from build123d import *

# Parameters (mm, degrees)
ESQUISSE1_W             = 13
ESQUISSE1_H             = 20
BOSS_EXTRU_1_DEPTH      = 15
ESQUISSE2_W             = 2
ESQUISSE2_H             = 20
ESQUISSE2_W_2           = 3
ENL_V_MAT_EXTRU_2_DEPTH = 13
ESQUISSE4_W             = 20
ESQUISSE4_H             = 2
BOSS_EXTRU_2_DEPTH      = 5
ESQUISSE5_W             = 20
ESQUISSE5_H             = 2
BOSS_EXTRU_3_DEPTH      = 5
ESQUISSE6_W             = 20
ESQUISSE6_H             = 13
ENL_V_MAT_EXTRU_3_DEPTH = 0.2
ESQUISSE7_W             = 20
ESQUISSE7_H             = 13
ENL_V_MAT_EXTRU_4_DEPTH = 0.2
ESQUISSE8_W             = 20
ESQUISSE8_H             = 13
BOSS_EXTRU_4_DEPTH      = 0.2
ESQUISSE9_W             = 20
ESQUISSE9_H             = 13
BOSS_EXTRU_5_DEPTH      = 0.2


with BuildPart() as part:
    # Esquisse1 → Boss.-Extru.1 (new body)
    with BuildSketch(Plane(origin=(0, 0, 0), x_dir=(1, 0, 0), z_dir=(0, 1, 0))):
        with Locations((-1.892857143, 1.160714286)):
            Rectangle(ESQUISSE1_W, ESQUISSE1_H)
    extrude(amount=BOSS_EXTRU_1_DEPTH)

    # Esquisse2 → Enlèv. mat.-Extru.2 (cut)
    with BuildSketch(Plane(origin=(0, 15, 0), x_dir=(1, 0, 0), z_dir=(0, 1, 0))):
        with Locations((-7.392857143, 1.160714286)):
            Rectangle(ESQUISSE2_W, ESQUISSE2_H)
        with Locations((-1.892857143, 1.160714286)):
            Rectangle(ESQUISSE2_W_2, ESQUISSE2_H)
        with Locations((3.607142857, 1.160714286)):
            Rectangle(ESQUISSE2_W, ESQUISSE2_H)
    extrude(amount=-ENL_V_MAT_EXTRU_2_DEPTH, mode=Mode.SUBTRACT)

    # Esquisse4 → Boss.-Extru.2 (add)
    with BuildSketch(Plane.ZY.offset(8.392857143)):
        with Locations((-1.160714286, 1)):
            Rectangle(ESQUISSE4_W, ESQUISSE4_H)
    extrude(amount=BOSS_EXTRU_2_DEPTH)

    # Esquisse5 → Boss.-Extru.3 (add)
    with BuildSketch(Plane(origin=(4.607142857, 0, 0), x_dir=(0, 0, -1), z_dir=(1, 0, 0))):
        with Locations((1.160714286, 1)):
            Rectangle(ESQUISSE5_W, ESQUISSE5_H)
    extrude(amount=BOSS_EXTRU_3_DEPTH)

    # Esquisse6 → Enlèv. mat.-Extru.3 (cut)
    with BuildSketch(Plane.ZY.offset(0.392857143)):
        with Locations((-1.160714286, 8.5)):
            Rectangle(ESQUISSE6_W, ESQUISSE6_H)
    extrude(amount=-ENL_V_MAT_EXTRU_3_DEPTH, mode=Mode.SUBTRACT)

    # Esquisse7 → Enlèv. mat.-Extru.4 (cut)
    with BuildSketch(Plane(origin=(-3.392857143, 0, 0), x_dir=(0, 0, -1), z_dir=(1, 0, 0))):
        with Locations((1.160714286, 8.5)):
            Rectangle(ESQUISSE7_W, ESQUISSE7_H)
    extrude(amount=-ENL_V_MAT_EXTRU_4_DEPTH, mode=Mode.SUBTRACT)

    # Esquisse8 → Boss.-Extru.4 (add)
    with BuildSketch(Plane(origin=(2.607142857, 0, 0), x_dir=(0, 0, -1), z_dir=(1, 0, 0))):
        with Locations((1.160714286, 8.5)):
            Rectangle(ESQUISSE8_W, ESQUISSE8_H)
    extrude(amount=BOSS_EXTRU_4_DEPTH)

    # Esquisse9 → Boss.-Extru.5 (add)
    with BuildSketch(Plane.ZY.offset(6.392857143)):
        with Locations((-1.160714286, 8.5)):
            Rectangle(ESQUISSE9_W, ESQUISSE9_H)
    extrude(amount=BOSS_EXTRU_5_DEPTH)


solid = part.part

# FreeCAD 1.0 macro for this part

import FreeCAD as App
import Part
import Sketcher


def add_polygon(sketch, points):
    """Adds a closed chain of lines whose ends are joined by coincident constraints."""
    first, n = sketch.GeometryCount, len(points)
    for a, b in zip(points, points[1:] + points[:1]):
        sketch.addGeometry(Part.LineSegment(App.Vector(*a, 0), App.Vector(*b, 0)), False)
    for i in range(n):
        sketch.addConstraint(Sketcher.Constraint("Coincident", first + i, 2, first + (i + 1) % n, 1))

doc = App.newDocument("Part")
body = doc.addObject("PartDesign::Body", "Body")

# Sketch on XZ plane
sketch1 = body.newObject("Sketcher::SketchObject", "Sketch")
sketch1.AttachmentSupport = (doc.getObject("XZ_Plane"), [""])
sketch1.MapMode = "FlatFace"
add_polygon(sketch1, [(-8, -11), (-8, 9), (5, 9), (5, -11)])  # lines 0-3
sketch1.addConstraint([
    Sketcher.Constraint("Vertical", 0),
    Sketcher.Constraint("Horizontal", 1),
    Sketcher.Constraint("Vertical", 2),
    Sketcher.Constraint("Horizontal", 3),
    Sketcher.Constraint("DistanceX", 1, 1, 1, 2, 13.0),
    Sketcher.Constraint("DistanceY", 0, 1, 0, 2, 20.0),
    Sketcher.Constraint("DistanceX", 0, 2, -1, 1, 8.392857),
    Sketcher.Constraint("DistanceY", -1, 1, 0, 2, 8.839286),
])
pad1 = body.newObject("PartDesign::Pad", "Pad")
pad1.Profile = sketch1
pad1.Length = 15
pad1.Reversed = True

# Sketch on XZ plane
sketch2 = body.newObject("Sketcher::SketchObject", "Sketch001")
sketch2.AttachmentSupport = (doc.getObject("XZ_Plane"), [""])
sketch2.MapMode = "FlatFace"
sketch2.AttachmentOffset = App.Placement(App.Vector(0, 0, -15), App.Rotation())
add_polygon(sketch2, [(-8.4, -11.2), (-8.4, 8.8), (-6.4, 8.8), (-6.4, -11.2)])  # lines 0-3
add_polygon(sketch2, [(-3.4, -11.2), (-3.4, 8.8), (-0.4, 8.8), (-0.4, -11.2)])  # lines 4-7
add_polygon(sketch2, [(2.6, -11.2), (2.6, 8.8), (4.6, 8.8), (4.6, -11.2)])  # lines 8-11
sketch2.addConstraint([
    Sketcher.Constraint("Vertical", 0),
    Sketcher.Constraint("Horizontal", 1),
    Sketcher.Constraint("Vertical", 2),
    Sketcher.Constraint("Horizontal", 3),
    Sketcher.Constraint("Vertical", 4),
    Sketcher.Constraint("Horizontal", 5),
    Sketcher.Constraint("Vertical", 6),
    Sketcher.Constraint("Horizontal", 7),
    Sketcher.Constraint("Vertical", 8),
    Sketcher.Constraint("Horizontal", 9),
    Sketcher.Constraint("Vertical", 10),
    Sketcher.Constraint("Horizontal", 11),
    Sketcher.Constraint("Horizontal", 1, 2, 4, 2),
    Sketcher.Constraint("Horizontal", 3, 2, 6, 2),
    Sketcher.Constraint("Horizontal", 5, 2, 8, 2),
    Sketcher.Constraint("Horizontal", 7, 2, 10, 2),
    Sketcher.Constraint("Equal", 3, 9),
    Sketcher.Constraint("DistanceX", 1, 1, 1, 2, 2.0),
    Sketcher.Constraint("DistanceX", 5, 1, 5, 2, 3.0),
    Sketcher.Constraint("DistanceY", 0, 1, 0, 2, 20.0),
    Sketcher.Constraint("DistanceX", 1, 2, 4, 2, 3.0),
    Sketcher.Constraint("DistanceX", 5, 2, 8, 2, 3.0),
    Sketcher.Constraint("DistanceX", 0, 2, -1, 1, 8.392857),
    Sketcher.Constraint("DistanceY", -1, 1, 0, 2, 8.839286),
])
pocket1 = body.newObject("PartDesign::Pocket", "Pocket")
pocket1.Profile = sketch2
pocket1.Length = 13
pocket1.Reversed = True

# Sketch on YZ plane
sketch3 = body.newObject("Sketcher::SketchObject", "Sketch002")
sketch3.AttachmentSupport = (doc.getObject("YZ_Plane"), [""])
sketch3.MapMode = "FlatFace"
sketch3.AttachmentOffset = App.Placement(App.Vector(0, 0, -8.392857), App.Rotation())
add_polygon(sketch3, [(2, -11.2), (0, -11.2), (0, 8.8), (2, 8.8)])  # lines 0-3
sketch3.addConstraint([
    Sketcher.Constraint("Horizontal", 0),
    Sketcher.Constraint("Vertical", 1),
    Sketcher.Constraint("Horizontal", 2),
    Sketcher.Constraint("Vertical", 3),
    Sketcher.Constraint("PointOnObject", 0, 2, -2),
    Sketcher.Constraint("DistanceX", 0, 2, 0, 1, 2.0),
    Sketcher.Constraint("DistanceY", 1, 1, 1, 2, 20.0),
    Sketcher.Constraint("DistanceY", 0, 2, -1, 1, 11.160714),
])
pad2 = body.newObject("PartDesign::Pad", "Pad001")
pad2.Profile = sketch3
pad2.Length = 5
pad2.Reversed = True

# Sketch on YZ plane
sketch4 = body.newObject("Sketcher::SketchObject", "Sketch003")
sketch4.AttachmentSupport = (doc.getObject("YZ_Plane"), [""])
sketch4.MapMode = "FlatFace"
sketch4.AttachmentOffset = App.Placement(App.Vector(0, 0, 4.607143), App.Rotation())
add_polygon(sketch4, [(2, 8.8), (0, 8.8), (0, -11.2), (2, -11.2)])  # lines 0-3
sketch4.addConstraint([
    Sketcher.Constraint("Horizontal", 0),
    Sketcher.Constraint("Vertical", 1),
    Sketcher.Constraint("Horizontal", 2),
    Sketcher.Constraint("Vertical", 3),
    Sketcher.Constraint("PointOnObject", 0, 2, -2),
    Sketcher.Constraint("DistanceX", 0, 2, 0, 1, 2.0),
    Sketcher.Constraint("DistanceY", 1, 2, 1, 1, 20.0),
    Sketcher.Constraint("DistanceY", -1, 1, 0, 2, 8.839286),
])
pad3 = body.newObject("PartDesign::Pad", "Pad002")
pad3.Profile = sketch4
pad3.Length = 5

# Sketch on YZ plane
sketch5 = body.newObject("Sketcher::SketchObject", "Sketch004")
sketch5.AttachmentSupport = (doc.getObject("YZ_Plane"), [""])
sketch5.MapMode = "FlatFace"
sketch5.AttachmentOffset = App.Placement(App.Vector(0, 0, -0.392857), App.Rotation())
add_polygon(sketch5, [(15, -11), (2, -11), (2, 9), (15, 9)])  # lines 0-3
sketch5.addConstraint([
    Sketcher.Constraint("Horizontal", 0),
    Sketcher.Constraint("Vertical", 1),
    Sketcher.Constraint("Horizontal", 2),
    Sketcher.Constraint("Vertical", 3),
    Sketcher.Constraint("DistanceX", 0, 2, 0, 1, 13.0),
    Sketcher.Constraint("DistanceY", 1, 1, 1, 2, 20.0),
    Sketcher.Constraint("DistanceX", -1, 1, 0, 2, 2.0),
    Sketcher.Constraint("DistanceY", 0, 2, -1, 1, 11.160714),
])
pocket2 = body.newObject("PartDesign::Pocket", "Pocket001")
pocket2.Profile = sketch5
pocket2.Length = 0.2
pocket2.Reversed = True

# Sketch on YZ plane
sketch6 = body.newObject("Sketcher::SketchObject", "Sketch005")
sketch6.AttachmentSupport = (doc.getObject("YZ_Plane"), [""])
sketch6.MapMode = "FlatFace"
sketch6.AttachmentOffset = App.Placement(App.Vector(0, 0, -3.392857), App.Rotation())
add_polygon(sketch6, [(15, 9), (2, 9), (2, -11), (15, -11)])  # lines 0-3
sketch6.addConstraint([
    Sketcher.Constraint("Horizontal", 0),
    Sketcher.Constraint("Vertical", 1),
    Sketcher.Constraint("Horizontal", 2),
    Sketcher.Constraint("Vertical", 3),
    Sketcher.Constraint("DistanceX", 0, 2, 0, 1, 13.0),
    Sketcher.Constraint("DistanceY", 1, 2, 1, 1, 20.0),
    Sketcher.Constraint("DistanceX", -1, 1, 0, 2, 2.0),
    Sketcher.Constraint("DistanceY", -1, 1, 0, 2, 8.839286),
])
pocket3 = body.newObject("PartDesign::Pocket", "Pocket002")
pocket3.Profile = sketch6
pocket3.Length = 0.2

# Sketch on YZ plane
sketch7 = body.newObject("Sketcher::SketchObject", "Sketch006")
sketch7.AttachmentSupport = (doc.getObject("YZ_Plane"), [""])
sketch7.MapMode = "FlatFace"
sketch7.AttachmentOffset = App.Placement(App.Vector(0, 0, 2.607143), App.Rotation())
add_polygon(sketch7, [(15, 9), (2, 9), (2, -11), (15, -11)])  # lines 0-3
sketch7.addConstraint([
    Sketcher.Constraint("Horizontal", 0),
    Sketcher.Constraint("Vertical", 1),
    Sketcher.Constraint("Horizontal", 2),
    Sketcher.Constraint("Vertical", 3),
    Sketcher.Constraint("DistanceX", 0, 2, 0, 1, 13.0),
    Sketcher.Constraint("DistanceY", 1, 2, 1, 1, 20.0),
    Sketcher.Constraint("DistanceX", -1, 1, 0, 2, 2.0),
    Sketcher.Constraint("DistanceY", -1, 1, 0, 2, 8.839286),
])
pad4 = body.newObject("PartDesign::Pad", "Pad003")
pad4.Profile = sketch7
pad4.Length = 0.2

# Sketch on YZ plane
sketch8 = body.newObject("Sketcher::SketchObject", "Sketch007")
sketch8.AttachmentSupport = (doc.getObject("YZ_Plane"), [""])
sketch8.MapMode = "FlatFace"
sketch8.AttachmentOffset = App.Placement(App.Vector(0, 0, -6.392857), App.Rotation())
add_polygon(sketch8, [(15, -11), (2, -11), (2, 9), (15, 9)])  # lines 0-3
sketch8.addConstraint([
    Sketcher.Constraint("Horizontal", 0),
    Sketcher.Constraint("Vertical", 1),
    Sketcher.Constraint("Horizontal", 2),
    Sketcher.Constraint("Vertical", 3),
    Sketcher.Constraint("DistanceX", 0, 2, 0, 1, 13.0),
    Sketcher.Constraint("DistanceY", 1, 1, 1, 2, 20.0),
    Sketcher.Constraint("DistanceX", -1, 1, 0, 2, 2.0),
    Sketcher.Constraint("DistanceY", 0, 2, -1, 1, 11.160714),
])
pad5 = body.newObject("PartDesign::Pad", "Pad004")
pad5.Profile = sketch8
pad5.Length = 0.2
pad5.Reversed = True

doc.recompute()
